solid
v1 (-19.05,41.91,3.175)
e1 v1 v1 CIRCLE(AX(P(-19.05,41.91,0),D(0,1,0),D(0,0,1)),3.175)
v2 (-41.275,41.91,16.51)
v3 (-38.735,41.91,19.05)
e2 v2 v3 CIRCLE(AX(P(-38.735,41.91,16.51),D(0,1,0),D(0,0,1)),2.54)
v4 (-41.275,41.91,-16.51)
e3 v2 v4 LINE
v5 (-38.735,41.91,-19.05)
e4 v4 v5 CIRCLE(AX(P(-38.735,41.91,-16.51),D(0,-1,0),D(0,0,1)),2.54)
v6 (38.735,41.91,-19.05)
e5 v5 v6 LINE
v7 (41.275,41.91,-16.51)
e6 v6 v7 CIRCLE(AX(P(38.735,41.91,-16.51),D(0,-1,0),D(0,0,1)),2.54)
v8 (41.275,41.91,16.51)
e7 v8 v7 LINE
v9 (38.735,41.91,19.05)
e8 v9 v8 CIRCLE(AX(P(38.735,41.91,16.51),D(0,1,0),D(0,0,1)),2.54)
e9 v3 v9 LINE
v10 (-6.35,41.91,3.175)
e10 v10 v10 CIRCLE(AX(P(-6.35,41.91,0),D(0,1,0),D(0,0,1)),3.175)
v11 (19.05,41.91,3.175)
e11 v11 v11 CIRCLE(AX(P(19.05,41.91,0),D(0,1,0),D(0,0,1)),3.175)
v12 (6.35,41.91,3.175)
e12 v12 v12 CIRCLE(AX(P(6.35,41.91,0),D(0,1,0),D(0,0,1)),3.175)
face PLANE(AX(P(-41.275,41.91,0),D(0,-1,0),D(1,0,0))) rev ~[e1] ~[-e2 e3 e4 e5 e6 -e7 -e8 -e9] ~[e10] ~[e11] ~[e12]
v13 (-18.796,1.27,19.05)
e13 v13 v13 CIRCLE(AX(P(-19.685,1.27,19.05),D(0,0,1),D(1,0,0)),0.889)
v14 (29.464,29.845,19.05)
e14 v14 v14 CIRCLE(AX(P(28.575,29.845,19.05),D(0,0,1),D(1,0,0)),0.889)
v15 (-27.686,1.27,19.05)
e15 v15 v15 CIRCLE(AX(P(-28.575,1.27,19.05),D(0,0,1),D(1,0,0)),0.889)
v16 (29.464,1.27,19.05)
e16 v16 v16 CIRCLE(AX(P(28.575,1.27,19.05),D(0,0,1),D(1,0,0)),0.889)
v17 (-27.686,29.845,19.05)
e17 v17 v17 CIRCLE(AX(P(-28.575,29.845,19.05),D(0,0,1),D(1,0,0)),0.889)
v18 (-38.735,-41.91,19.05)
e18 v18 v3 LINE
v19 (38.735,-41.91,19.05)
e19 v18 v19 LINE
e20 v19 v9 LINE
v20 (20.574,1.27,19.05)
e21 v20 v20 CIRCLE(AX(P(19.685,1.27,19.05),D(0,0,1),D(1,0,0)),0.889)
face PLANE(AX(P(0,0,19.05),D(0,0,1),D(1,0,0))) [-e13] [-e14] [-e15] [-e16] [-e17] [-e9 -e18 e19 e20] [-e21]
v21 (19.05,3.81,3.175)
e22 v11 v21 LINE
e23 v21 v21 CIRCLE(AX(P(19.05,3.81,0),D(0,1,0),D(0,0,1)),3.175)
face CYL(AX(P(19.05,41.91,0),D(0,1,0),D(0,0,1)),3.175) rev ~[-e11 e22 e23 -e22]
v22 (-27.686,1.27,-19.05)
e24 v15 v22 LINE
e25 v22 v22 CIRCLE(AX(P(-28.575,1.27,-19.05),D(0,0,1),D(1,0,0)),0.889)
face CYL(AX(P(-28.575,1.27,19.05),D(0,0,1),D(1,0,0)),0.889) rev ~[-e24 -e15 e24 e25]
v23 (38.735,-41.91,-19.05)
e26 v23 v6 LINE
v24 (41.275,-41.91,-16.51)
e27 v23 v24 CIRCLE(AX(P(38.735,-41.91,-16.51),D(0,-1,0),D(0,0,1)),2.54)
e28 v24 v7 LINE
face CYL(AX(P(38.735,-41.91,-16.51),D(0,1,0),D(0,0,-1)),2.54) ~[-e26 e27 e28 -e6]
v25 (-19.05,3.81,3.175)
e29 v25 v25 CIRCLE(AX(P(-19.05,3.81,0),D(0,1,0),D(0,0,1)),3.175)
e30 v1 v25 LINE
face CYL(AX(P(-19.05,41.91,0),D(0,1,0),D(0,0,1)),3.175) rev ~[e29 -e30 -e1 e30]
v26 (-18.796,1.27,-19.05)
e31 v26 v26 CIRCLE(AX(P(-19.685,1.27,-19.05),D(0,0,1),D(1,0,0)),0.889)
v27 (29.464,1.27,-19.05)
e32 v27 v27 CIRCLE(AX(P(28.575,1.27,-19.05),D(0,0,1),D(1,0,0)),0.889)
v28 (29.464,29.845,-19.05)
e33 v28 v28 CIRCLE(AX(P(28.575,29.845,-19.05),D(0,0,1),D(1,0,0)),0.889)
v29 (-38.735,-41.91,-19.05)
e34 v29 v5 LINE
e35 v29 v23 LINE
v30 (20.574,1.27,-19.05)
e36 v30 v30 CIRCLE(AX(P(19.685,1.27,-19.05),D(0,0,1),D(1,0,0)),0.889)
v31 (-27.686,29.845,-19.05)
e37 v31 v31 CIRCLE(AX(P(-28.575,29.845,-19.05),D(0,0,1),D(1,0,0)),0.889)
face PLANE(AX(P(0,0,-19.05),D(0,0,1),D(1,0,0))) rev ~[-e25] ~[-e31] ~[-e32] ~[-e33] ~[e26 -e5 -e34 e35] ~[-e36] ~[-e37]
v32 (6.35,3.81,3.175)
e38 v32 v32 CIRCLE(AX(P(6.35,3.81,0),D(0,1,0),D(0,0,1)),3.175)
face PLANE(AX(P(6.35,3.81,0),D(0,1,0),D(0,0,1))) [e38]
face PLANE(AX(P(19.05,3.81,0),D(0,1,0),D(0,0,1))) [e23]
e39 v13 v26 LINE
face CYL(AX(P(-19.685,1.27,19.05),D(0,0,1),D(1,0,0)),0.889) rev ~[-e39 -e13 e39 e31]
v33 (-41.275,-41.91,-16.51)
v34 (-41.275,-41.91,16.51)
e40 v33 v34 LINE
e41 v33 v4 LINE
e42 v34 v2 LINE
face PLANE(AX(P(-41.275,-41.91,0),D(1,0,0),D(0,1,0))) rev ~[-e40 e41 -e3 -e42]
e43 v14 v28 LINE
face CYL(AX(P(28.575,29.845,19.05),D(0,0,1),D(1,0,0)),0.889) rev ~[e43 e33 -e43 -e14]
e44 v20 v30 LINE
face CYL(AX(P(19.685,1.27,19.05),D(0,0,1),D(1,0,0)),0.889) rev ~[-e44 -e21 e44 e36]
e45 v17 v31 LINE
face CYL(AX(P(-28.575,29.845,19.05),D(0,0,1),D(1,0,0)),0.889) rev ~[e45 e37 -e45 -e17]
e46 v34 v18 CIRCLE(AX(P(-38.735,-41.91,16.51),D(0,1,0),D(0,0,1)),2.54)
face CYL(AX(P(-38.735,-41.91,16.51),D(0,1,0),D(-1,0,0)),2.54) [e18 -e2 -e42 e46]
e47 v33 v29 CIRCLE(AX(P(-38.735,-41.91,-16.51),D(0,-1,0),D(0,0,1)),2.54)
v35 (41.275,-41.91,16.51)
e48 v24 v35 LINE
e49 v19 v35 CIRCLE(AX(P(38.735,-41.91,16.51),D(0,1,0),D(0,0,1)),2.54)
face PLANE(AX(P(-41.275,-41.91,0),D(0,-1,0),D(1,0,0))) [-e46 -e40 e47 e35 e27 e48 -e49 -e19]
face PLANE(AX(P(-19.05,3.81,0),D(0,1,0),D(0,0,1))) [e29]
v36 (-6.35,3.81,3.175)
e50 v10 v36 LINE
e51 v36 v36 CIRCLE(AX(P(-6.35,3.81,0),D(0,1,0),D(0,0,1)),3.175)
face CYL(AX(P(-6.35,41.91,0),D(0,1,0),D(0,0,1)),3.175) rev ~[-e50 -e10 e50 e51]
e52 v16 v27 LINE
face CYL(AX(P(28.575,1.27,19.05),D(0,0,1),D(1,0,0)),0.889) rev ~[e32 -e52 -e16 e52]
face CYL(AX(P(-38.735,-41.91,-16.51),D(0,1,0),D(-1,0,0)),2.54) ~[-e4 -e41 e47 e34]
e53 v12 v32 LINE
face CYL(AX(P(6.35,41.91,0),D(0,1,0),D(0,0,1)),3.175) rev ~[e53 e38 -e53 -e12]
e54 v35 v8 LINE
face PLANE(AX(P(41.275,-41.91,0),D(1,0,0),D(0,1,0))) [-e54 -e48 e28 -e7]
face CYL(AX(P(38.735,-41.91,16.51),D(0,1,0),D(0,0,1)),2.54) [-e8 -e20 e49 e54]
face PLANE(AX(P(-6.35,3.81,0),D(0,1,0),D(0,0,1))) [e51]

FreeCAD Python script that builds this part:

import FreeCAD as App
import Part
import Sketcher
Q = App.Units.Quantity


def edges_at(feature, points):
    """Names of the edges that pass closest to the given points."""
    edges = feature.Shape.Edges
    near = lambda p: min(range(len(edges)), key=lambda i: edges[i].distToShape(Part.Vertex(*p))[0])
    return sorted({f"Edge{near(p) + 1}" for p in points})

doc = App.newDocument("Part")
body = doc.addObject("PartDesign::Body", "Body")

# Sketch on XY plane
sketch1 = doc.addObject("Sketcher::SketchObject", "Sketch")
body.addObject(sketch1)
sketch1.AttachmentSupport = (doc.XY_Plane, [""])
sketch1.MapMode = "FlatFace"
sketch1.addGeometry([
    Part.LineSegment(App.Vector(-41, 42, 0), App.Vector(-41, -42, 0)),
    Part.LineSegment(App.Vector(-41, -42, 0), App.Vector(41, -42, 0)),
    Part.LineSegment(App.Vector(41, -42, 0), App.Vector(41, 42, 0)),
    Part.LineSegment(App.Vector(41, 42, 0), App.Vector(-41, 42, 0)),
], False)
sketch1.addConstraint([
    Sketcher.Constraint("Coincident", 0, 2, 1, 1),
    Sketcher.Constraint("Coincident", 1, 2, 2, 1),
    Sketcher.Constraint("Coincident", 2, 2, 3, 1),
    Sketcher.Constraint("Coincident", 3, 2, 0, 1),
    Sketcher.Constraint("Vertical", 0),
    Sketcher.Constraint("Horizontal", 1),
    Sketcher.Constraint("Vertical", 2),
    Sketcher.Constraint("Horizontal", 3),
    Sketcher.Constraint("Symmetric", 0, 2, 2, 2, -1, 1),
    Sketcher.Constraint("DistanceY", 0, 2, 0, 1, Q("3.3 in")),
    Sketcher.Constraint("DistanceX", 1, 1, 1, 2, Q("3.25 in")),
])
pad1 = doc.addObject("PartDesign::Pad", "Pad")
body.addObject(pad1)
pad1.Profile = sketch1
pad1.Length = Q("1.5 in")
pad1.Midplane = True

# Sketch on XY plane
sketch2 = doc.addObject("Sketcher::SketchObject", "Sketch001")
body.addObject(sketch2)
sketch2.AttachmentSupport = (doc.XY_Plane, [""])
sketch2.MapMode = "FlatFace"
sketch2.AttachmentOffset = App.Placement(App.Vector(0, 0, 0.75 * 25.4), App.Rotation())
sketch2.addGeometry([
    Part.Circle(App.Vector(-28.6, 29.8, 0), App.Vector(0, 0, 1), 0.9),  # 0
    Part.Circle(App.Vector(28.6, 29.8, 0), App.Vector(0, 0, 1), 0.9),  # 1
    Part.Circle(App.Vector(28.6, 1.3, 0), App.Vector(0, 0, 1), 0.9),  # 2
    Part.Circle(App.Vector(-28.6, 1.3, 0), App.Vector(0, 0, 1), 0.9),  # 3
    Part.Circle(App.Vector(-19.7, 1.3, 0), App.Vector(0, 0, 1), 0.9),  # 4
    Part.Circle(App.Vector(19.7, 1.3, 0), App.Vector(0, 0, 1), 0.9),  # 5
], False)
sketch2.addConstraint([
    Sketcher.Constraint("Equal", 0, 1),
    Sketcher.Constraint("Equal", 1, 2),
    Sketcher.Constraint("Equal", 2, 3),
    Sketcher.Constraint("Equal", 3, 4),
    Sketcher.Constraint("Equal", 4, 5),
    Sketcher.Constraint("Symmetric", 0, 3, 1, 3, -2),
    Sketcher.Constraint("Symmetric", 2, 3, 3, 3, -2),
    Sketcher.Constraint("Symmetric", 4, 3, 5, 3, -2),
    Sketcher.Constraint("Horizontal", 3, 3, 4, 3),
    Sketcher.Constraint("Vertical", 1, 3, 2, 3),
    Sketcher.Constraint("Diameter", 0, Q("0.07 in")),
    Sketcher.Constraint("DistanceX", 4, 3, 2, 3, Q("1.9 in")),
    Sketcher.Constraint("DistanceY", -1, 1, 2, 3, Q("0.05 in")),
    Sketcher.Constraint("DistanceX", 0, 3, 1, 3, Q("2.25 in")),
    Sketcher.Constraint("DistanceY", -1, 1, 0, 3, Q("1.175 in")),
])
pocket1 = doc.addObject("PartDesign::Pocket", "Pocket")
body.addObject(pocket1)
pocket1.Profile = sketch2
pocket1.Type = "ThroughAll"
doc.recompute()

fillet = doc.addObject("PartDesign::Fillet", "Fillet")
body.addObject(fillet)
fillet.Base = (pocket1, edges_at(pocket1, [
    (-41.275, 0, 19.05),
    (41.275, 0, 19.05),
    (-41.275, 0, -19.05),
    (41.275, 0, -19.05),
]))
fillet.Radius = Q("0.1 in")

# Sketch on XZ plane
sketch3 = doc.addObject("Sketcher::SketchObject", "Sketch002")
body.addObject(sketch3)
sketch3.AttachmentSupport = (doc.XZ_Plane, [""])
sketch3.MapMode = "FlatFace"
sketch3.AttachmentOffset = App.Placement(App.Vector(0, 0, -1.65 * 25.4), App.Rotation())
sketch3.addGeometry([
    Part.Circle(App.Vector(-6.3, 0, 0), App.Vector(0, 0, 1), 3.2),
    Part.Circle(App.Vector(6.3, 0, 0), App.Vector(0, 0, 1), 3.2),
    Part.Circle(App.Vector(19.1, 0, 0), App.Vector(0, 0, 1), 3.2),
    Part.Circle(App.Vector(-19.1, 0, 0), App.Vector(0, 0, 1), 3.2),
], False)
sketch3.addConstraint([
    Sketcher.Constraint("Equal", 0, 1),
    Sketcher.Constraint("Equal", 1, 2),
    Sketcher.Constraint("Equal", 2, 3),
    Sketcher.Constraint("Symmetric", 0, 3, 1, 3, -1, 1),
    Sketcher.Constraint("Symmetric", 2, 3, 3, 3, -1, 1),
    Sketcher.Constraint("PointOnObject", 0, 3, -1),
    Sketcher.Constraint("PointOnObject", 2, 3, -1),
    Sketcher.Constraint("Diameter", 0, Q("0.25 in")),
    Sketcher.Constraint("DistanceX", 0, 3, 2, 3, Q("1 in")),
    Sketcher.Constraint("DistanceX", 0, 3, 1, 3, Q("0.5 in")),
])
pocket2 = doc.addObject("PartDesign::Pocket", "Pocket001")
body.addObject(pocket2)
pocket2.Profile = sketch3
pocket2.Length = Q("1.5 in")
pocket2.Reversed = True

doc.recompute()
